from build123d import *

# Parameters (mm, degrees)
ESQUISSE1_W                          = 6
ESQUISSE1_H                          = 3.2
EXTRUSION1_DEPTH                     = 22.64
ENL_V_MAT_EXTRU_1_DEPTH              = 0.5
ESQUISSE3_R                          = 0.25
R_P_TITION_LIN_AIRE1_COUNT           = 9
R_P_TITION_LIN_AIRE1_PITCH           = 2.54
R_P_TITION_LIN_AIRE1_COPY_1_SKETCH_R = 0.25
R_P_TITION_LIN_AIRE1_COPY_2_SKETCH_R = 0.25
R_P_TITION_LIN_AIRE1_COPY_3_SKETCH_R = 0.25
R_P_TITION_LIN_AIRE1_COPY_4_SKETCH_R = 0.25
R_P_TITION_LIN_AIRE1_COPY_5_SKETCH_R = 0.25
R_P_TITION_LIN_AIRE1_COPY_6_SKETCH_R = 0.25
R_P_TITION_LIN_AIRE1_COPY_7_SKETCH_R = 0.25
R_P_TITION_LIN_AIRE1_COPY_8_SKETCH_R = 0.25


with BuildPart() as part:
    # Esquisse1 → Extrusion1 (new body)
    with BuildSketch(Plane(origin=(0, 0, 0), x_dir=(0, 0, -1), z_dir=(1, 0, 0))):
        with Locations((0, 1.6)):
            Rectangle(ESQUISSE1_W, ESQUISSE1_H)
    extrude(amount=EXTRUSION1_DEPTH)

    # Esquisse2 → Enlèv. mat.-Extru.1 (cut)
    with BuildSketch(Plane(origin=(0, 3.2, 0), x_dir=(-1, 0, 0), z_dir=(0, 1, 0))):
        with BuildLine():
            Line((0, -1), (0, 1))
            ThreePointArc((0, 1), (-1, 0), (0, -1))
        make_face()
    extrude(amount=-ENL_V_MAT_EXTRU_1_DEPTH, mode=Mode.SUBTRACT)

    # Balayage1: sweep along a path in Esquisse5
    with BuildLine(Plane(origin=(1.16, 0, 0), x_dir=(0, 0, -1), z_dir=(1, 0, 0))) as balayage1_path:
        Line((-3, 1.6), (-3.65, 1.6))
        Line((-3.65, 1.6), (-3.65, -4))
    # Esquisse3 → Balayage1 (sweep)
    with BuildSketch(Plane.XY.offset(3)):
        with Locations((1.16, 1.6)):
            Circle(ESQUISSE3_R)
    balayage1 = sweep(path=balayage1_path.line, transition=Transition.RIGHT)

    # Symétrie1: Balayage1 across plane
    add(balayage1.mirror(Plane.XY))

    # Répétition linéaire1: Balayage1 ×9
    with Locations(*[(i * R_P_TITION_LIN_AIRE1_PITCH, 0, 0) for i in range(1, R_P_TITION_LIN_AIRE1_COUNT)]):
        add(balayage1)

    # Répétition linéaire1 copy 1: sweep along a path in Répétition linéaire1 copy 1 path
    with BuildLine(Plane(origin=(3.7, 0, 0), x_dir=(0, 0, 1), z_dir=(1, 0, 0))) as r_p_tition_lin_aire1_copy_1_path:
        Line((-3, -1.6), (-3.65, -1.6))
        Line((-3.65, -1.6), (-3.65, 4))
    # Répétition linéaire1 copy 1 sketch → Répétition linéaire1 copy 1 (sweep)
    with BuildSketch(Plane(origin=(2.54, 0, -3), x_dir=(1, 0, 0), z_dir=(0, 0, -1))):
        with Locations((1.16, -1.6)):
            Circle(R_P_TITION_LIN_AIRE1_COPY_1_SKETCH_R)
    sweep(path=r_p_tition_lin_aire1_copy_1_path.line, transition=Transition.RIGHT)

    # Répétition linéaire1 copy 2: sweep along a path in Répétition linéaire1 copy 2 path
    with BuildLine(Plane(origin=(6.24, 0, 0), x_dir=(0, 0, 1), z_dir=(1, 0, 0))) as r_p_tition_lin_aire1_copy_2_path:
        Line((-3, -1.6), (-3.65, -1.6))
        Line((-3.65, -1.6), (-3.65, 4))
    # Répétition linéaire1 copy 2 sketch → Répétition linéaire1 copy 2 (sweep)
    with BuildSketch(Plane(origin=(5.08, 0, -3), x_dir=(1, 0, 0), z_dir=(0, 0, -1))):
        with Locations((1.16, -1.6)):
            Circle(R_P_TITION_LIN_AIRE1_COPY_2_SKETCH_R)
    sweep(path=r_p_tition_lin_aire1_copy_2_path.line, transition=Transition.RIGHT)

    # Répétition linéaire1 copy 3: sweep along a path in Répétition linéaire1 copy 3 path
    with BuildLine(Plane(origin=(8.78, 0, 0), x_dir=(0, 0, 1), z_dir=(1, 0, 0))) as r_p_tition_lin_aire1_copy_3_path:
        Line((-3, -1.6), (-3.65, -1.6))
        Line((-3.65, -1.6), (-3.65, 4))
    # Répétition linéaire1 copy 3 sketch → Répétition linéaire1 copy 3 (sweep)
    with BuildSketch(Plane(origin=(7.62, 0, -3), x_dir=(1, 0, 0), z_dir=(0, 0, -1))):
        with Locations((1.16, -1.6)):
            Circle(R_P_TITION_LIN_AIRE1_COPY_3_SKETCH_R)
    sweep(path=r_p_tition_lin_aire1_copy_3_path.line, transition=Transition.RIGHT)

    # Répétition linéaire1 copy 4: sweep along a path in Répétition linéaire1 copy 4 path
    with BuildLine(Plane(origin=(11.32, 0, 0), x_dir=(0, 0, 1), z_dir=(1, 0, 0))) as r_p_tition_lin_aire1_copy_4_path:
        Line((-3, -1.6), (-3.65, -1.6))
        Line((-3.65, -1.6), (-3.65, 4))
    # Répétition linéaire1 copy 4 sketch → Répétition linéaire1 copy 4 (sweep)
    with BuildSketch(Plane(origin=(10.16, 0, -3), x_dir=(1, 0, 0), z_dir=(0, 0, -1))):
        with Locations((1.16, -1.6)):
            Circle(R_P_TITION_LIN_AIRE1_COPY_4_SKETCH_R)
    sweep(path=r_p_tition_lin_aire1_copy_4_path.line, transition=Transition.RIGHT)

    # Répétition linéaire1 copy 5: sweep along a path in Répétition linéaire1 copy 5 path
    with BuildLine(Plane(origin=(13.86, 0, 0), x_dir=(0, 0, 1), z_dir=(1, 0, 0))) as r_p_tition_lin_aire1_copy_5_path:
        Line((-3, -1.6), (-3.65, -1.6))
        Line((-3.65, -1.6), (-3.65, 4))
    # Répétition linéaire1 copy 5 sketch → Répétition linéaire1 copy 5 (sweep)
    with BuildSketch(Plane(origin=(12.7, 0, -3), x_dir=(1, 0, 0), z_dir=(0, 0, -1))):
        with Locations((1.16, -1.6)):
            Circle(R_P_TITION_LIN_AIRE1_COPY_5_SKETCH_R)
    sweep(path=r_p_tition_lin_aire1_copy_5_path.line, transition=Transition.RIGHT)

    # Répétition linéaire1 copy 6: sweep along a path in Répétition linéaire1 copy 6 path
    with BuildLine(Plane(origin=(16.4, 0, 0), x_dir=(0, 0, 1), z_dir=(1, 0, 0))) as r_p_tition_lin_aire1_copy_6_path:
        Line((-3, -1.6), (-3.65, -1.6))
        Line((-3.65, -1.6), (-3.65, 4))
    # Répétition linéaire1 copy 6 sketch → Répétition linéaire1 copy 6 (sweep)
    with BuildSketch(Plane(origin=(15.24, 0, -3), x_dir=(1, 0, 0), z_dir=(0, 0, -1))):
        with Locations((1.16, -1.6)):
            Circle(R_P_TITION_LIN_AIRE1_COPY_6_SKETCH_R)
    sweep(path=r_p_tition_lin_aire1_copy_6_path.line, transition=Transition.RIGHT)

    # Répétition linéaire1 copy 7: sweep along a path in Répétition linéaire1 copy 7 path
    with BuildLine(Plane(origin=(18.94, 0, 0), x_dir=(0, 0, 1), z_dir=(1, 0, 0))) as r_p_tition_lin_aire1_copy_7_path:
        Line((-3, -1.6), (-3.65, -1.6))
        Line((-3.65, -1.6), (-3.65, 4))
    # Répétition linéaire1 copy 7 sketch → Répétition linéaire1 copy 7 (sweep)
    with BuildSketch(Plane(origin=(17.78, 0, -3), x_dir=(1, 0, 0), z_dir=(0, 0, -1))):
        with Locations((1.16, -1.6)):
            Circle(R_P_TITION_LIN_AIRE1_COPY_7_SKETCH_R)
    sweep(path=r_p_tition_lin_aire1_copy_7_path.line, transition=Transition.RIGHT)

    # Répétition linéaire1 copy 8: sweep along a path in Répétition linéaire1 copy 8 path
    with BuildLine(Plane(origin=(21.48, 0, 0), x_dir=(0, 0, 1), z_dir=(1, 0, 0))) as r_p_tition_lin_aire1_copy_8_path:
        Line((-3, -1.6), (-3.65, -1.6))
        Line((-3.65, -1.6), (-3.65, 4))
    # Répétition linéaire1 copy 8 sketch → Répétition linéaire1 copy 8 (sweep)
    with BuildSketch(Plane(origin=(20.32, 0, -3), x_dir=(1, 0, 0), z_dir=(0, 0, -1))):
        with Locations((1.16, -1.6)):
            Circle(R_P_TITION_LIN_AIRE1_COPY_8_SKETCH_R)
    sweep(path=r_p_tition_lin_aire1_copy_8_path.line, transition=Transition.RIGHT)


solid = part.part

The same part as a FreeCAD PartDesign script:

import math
import FreeCAD as App
import Part
import Sketcher
Q = App.Units.Quantity

doc = App.newDocument("Part")
body = doc.addObject("PartDesign::Body", "Body")

# Sketch on YZ plane
sketch1 = body.newObject("Sketcher::SketchObject", "Sketch")
sketch1.AttachmentSupport = (doc.getObject("YZ_Plane"), [""])
sketch1.MapMode = "FlatFace"
sketch1.addGeometry([
    Part.LineSegment(App.Vector(3.2, 3, 0), App.Vector(0, 3, 0)),
    Part.LineSegment(App.Vector(0, 3, 0), App.Vector(0, -3, 0)),
    Part.LineSegment(App.Vector(0, -3, 0), App.Vector(3.2, -3, 0)),
    Part.LineSegment(App.Vector(3.2, -3, 0), App.Vector(3.2, 3, 0)),
], False)
sketch1.addConstraint([
    Sketcher.Constraint("Coincident", 0, 2, 1, 1),
    Sketcher.Constraint("Coincident", 1, 2, 2, 1),
    Sketcher.Constraint("Coincident", 2, 2, 3, 1),
    Sketcher.Constraint("Coincident", 3, 2, 0, 1),
    Sketcher.Constraint("Horizontal", 0),
    Sketcher.Constraint("Vertical", 1),
    Sketcher.Constraint("Horizontal", 2),
    Sketcher.Constraint("Vertical", 3),
    Sketcher.Constraint("Symmetric", 0, 2, 1, 2, -1, 1),
    Sketcher.Constraint("DistanceY", 1, 2, 1, 1, Q("6 mm")),
    Sketcher.Constraint("DistanceX", 0, 2, 0, 1, Q("3.2 mm")),
])
pad1 = body.newObject("PartDesign::Pad", "Pad")
pad1.Profile = sketch1
pad1.Length = 22.64

# Sketch on XZ plane
sketch2 = body.newObject("Sketcher::SketchObject", "Sketch001")
sketch2.AttachmentSupport = (doc.getObject("XZ_Plane"), [""])
sketch2.MapMode = "FlatFace"
sketch2.AttachmentOffset = App.Placement(App.Vector(0, 0, -3.2), App.Rotation())
sketch2.addGeometry([
    Part.LineSegment(App.Vector(0, -1, 0), App.Vector(0, 1, 0)),
    Part.ArcOfCircle(Part.Circle(App.Vector(0, 0, 0), App.Vector(0, 0, 1), 1), math.radians(-90), math.radians(90)),
], False)
sketch2.addConstraint([
    Sketcher.Constraint("Coincident", 0, 1, 1, 1),
    Sketcher.Constraint("Coincident", 1, 2, 0, 2),
    Sketcher.Constraint("Vertical", 0),
    Sketcher.Constraint("Coincident", 1, 3, -1, 1),
    Sketcher.Constraint("PointOnObject", 0, 1, -2),
    Sketcher.Constraint("Radius", 1, Q("1 mm")),
])
pocket1 = body.newObject("PartDesign::Pocket", "Pocket")
pocket1.Profile = sketch2
pocket1.Length = 0.5
pocket1.Reversed = True

# Sketch on XY plane
sketch3 = body.newObject("Sketcher::SketchObject", "Sketch002")
sketch3.AttachmentSupport = (doc.getObject("XY_Plane"), [""])
sketch3.MapMode = "FlatFace"
sketch3.AttachmentOffset = App.Placement(App.Vector(0, 0, 3), App.Rotation())
sketch3.addGeometry(Part.Circle(App.Vector(1.16, 1.6, 0), App.Vector(0, 0, 1), 0.25), False)
sketch3.addConstraint([
    Sketcher.Constraint("Diameter", 0, Q("0.5 mm")),
    Sketcher.Constraint("DistanceY", -1, 1, 0, 3, Q("1.6 mm")),
    Sketcher.Constraint("DistanceX", -1, 1, 0, 3, Q("1.16 mm")),
])

# Sketch on YZ plane
sketch4 = body.newObject("Sketcher::SketchObject", "Sketch003")
sketch4.AttachmentSupport = (doc.getObject("YZ_Plane"), [""])
sketch4.MapMode = "FlatFace"
sketch4.AttachmentOffset = App.Placement(App.Vector(0, 0, 1.16), App.Rotation())
sketch4.addGeometry([
    Part.LineSegment(App.Vector(1.6, 3, 0), App.Vector(1.6, 3.6, 0)),
    Part.LineSegment(App.Vector(1.6, 3.6, 0), App.Vector(-4, 3.6, 0)),
], False)
sketch4.addConstraint([
    Sketcher.Constraint("Coincident", 0, 2, 1, 1),
    Sketcher.Constraint("Vertical", 0),
    Sketcher.Constraint("Horizontal", 1),
    Sketcher.Constraint("DistanceX", 1, 2, 1, 1, Q("5.6 mm")),
    Sketcher.Constraint("DistanceY", -1, 1, 0, 1, Q("3 mm")),
    Sketcher.Constraint("DistanceX", 1, 2, -1, 1, Q("4 mm")),
    Sketcher.Constraint("DistanceY", 0, 1, 0, 2, Q("0.65 mm")),
])
doc.recompute()

additivepipe = body.newObject("PartDesign::AdditivePipe", "AdditivePipe")
additivepipe.Profile = sketch3
additivepipe.Spine = (sketch4, ["Edge1", "Edge2"])
additivepipe.Transition = "Right corner"
doc.recompute()

mirrored = body.newObject("PartDesign::Mirrored", "Mirrored")
mirrored.Originals = [additivepipe]
mirrored.MirrorPlane = (doc.getObject("XY_Plane"), [""])
body.Tip = mirrored
doc.recompute()

linearpattern = body.newObject("PartDesign::LinearPattern", "LinearPattern")
linearpattern.Originals = [additivepipe]
linearpattern.Direction = (doc.getObject("X_Axis"), [""])
linearpattern.Mode = "offset"
linearpattern.Offset = 2.54
linearpattern.Occurrences = 9
body.Tip = linearpattern

# Sketch on XY plane
sketch5 = body.newObject("Sketcher::SketchObject", "Sketch004")
sketch5.AttachmentSupport = (doc.getObject("XY_Plane"), [""])
sketch5.MapMode = "FlatFace"
sketch5.AttachmentOffset = App.Placement(App.Vector(0, 0, -3), App.Rotation())
sketch5.addGeometry(Part.Circle(App.Vector(3.7, 1.6, 0), App.Vector(0, 0, 1), 0.25), False)
sketch5.addConstraint([
    Sketcher.Constraint("Diameter", 0, Q("0.5 mm")),
    Sketcher.Constraint("DistanceX", -1, 1, 0, 3, Q("3.7 mm")),
    Sketcher.Constraint("DistanceY", -1, 1, 0, 3, Q("1.6 mm")),
])

# Sketch on YZ plane
sketch6 = body.newObject("Sketcher::SketchObject", "Sketch005")
sketch6.AttachmentSupport = (doc.getObject("YZ_Plane"), [""])
sketch6.MapMode = "FlatFace"
sketch6.AttachmentOffset = App.Placement(App.Vector(0, 0, 3.7), App.Rotation())
sketch6.addGeometry([
    Part.LineSegment(App.Vector(1.6, -3, 0), App.Vector(1.6, -3.6, 0)),
    Part.LineSegment(App.Vector(1.6, -3.6, 0), App.Vector(-4, -3.6, 0)),
], False)
sketch6.addConstraint([
    Sketcher.Constraint("Coincident", 0, 2, 1, 1),
    Sketcher.Constraint("Vertical", 0),
    Sketcher.Constraint("Horizontal", 1),
    Sketcher.Constraint("DistanceX", 1, 2, 1, 1, Q("5.6 mm")),
    Sketcher.Constraint("DistanceY", 0, 1, -1, 1, Q("3 mm")),
    Sketcher.Constraint("DistanceX", 1, 2, -1, 1, Q("4 mm")),
    Sketcher.Constraint("DistanceY", 0, 2, 0, 1, Q("0.65 mm")),
])
doc.recompute()

additivepipe2 = body.newObject("PartDesign::AdditivePipe", "AdditivePipe001")
additivepipe2.Profile = sketch5
additivepipe2.Spine = (sketch6, ["Edge1", "Edge2"])
additivepipe2.Transition = "Right corner"

# Sketch on XY plane
sketch7 = body.newObject("Sketcher::SketchObject", "Sketch006")
sketch7.AttachmentSupport = (doc.getObject("XY_Plane"), [""])
sketch7.MapMode = "FlatFace"
sketch7.AttachmentOffset = App.Placement(App.Vector(0, 0, -3), App.Rotation())
sketch7.addGeometry(Part.Circle(App.Vector(6.24, 1.6, 0), App.Vector(0, 0, 1), 0.25), False)
sketch7.addConstraint([
    Sketcher.Constraint("Diameter", 0, Q("0.5 mm")),
    Sketcher.Constraint("DistanceY", -1, 1, 0, 3, Q("1.6 mm")),
    Sketcher.Constraint("DistanceX", -1, 1, 0, 3, Q("6.24 mm")),
])

# Sketch on YZ plane
sketch8 = body.newObject("Sketcher::SketchObject", "Sketch007")
sketch8.AttachmentSupport = (doc.getObject("YZ_Plane"), [""])
sketch8.MapMode = "FlatFace"
sketch8.AttachmentOffset = App.Placement(App.Vector(0, 0, 6.24), App.Rotation())
sketch8.addGeometry([
    Part.LineSegment(App.Vector(1.6, -3, 0), App.Vector(1.6, -3.6, 0)),
    Part.LineSegment(App.Vector(1.6, -3.6, 0), App.Vector(-4, -3.6, 0)),
], False)
sketch8.addConstraint([
    Sketcher.Constraint("Coincident", 0, 2, 1, 1),
    Sketcher.Constraint("Vertical", 0),
    Sketcher.Constraint("Horizontal", 1),
    Sketcher.Constraint("DistanceX", 1, 2, 1, 1, Q("5.6 mm")),
    Sketcher.Constraint("DistanceY", 0, 1, -1, 1, Q("3 mm")),
    Sketcher.Constraint("DistanceX", 1, 2, -1, 1, Q("4 mm")),
    Sketcher.Constraint("DistanceY", 0, 2, 0, 1, Q("0.65 mm")),
])
doc.recompute()

additivepipe3 = body.newObject("PartDesign::AdditivePipe", "AdditivePipe002")
additivepipe3.Profile = sketch7
additivepipe3.Spine = (sketch8, ["Edge1", "Edge2"])
additivepipe3.Transition = "Right corner"

# Sketch on XY plane
sketch9 = body.newObject("Sketcher::SketchObject", "Sketch008")
sketch9.AttachmentSupport = (doc.getObject("XY_Plane"), [""])
sketch9.MapMode = "FlatFace"
sketch9.AttachmentOffset = App.Placement(App.Vector(0, 0, -3), App.Rotation())
sketch9.addGeometry(Part.Circle(App.Vector(8.78, 1.6, 0), App.Vector(0, 0, 1), 0.25), False)
sketch9.addConstraint([
    Sketcher.Constraint("Diameter", 0, Q("0.5 mm")),
    Sketcher.Constraint("DistanceY", -1, 1, 0, 3, Q("1.6 mm")),
    Sketcher.Constraint("DistanceX", -1, 1, 0, 3, Q("8.78 mm")),
])

# Sketch on YZ plane
sketch10 = body.newObject("Sketcher::SketchObject", "Sketch009")
sketch10.AttachmentSupport = (doc.getObject("YZ_Plane"), [""])
sketch10.MapMode = "FlatFace"
sketch10.AttachmentOffset = App.Placement(App.Vector(0, 0, 8.78), App.Rotation())
sketch10.addGeometry([
    Part.LineSegment(App.Vector(1.6, -3, 0), App.Vector(1.6, -3.6, 0)),
    Part.LineSegment(App.Vector(1.6, -3.6, 0), App.Vector(-4, -3.6, 0)),
], False)
sketch10.addConstraint([
    Sketcher.Constraint("Coincident", 0, 2, 1, 1),
    Sketcher.Constraint("Vertical", 0),
    Sketcher.Constraint("Horizontal", 1),
    Sketcher.Constraint("DistanceX", 1, 2, 1, 1, Q("5.6 mm")),
    Sketcher.Constraint("DistanceY", 0, 1, -1, 1, Q("3 mm")),
    Sketcher.Constraint("DistanceX", 1, 2, -1, 1, Q("4 mm")),
    Sketcher.Constraint("DistanceY", 0, 2, 0, 1, Q("0.65 mm")),
])
doc.recompute()

additivepipe4 = body.newObject("PartDesign::AdditivePipe", "AdditivePipe003")
additivepipe4.Profile = sketch9
additivepipe4.Spine = (sketch10, ["Edge1", "Edge2"])
additivepipe4.Transition = "Right corner"

# Sketch on XY plane
sketch11 = body.newObject("Sketcher::SketchObject", "Sketch010")
sketch11.AttachmentSupport = (doc.getObject("XY_Plane"), [""])
sketch11.MapMode = "FlatFace"
sketch11.AttachmentOffset = App.Placement(App.Vector(0, 0, -3), App.Rotation())
sketch11.addGeometry(Part.Circle(App.Vector(11.32, 1.6, 0), App.Vector(0, 0, 1), 0.25), False)
sketch11.addConstraint([
    Sketcher.Constraint("Diameter", 0, Q("0.5 mm")),
    Sketcher.Constraint("DistanceY", -1, 1, 0, 3, Q("1.6 mm")),
    Sketcher.Constraint("DistanceX", -1, 1, 0, 3, Q("11.32 mm")),
])

# Sketch on YZ plane
sketch12 = body.newObject("Sketcher::SketchObject", "Sketch011")
sketch12.AttachmentSupport = (doc.getObject("YZ_Plane"), [""])
sketch12.MapMode = "FlatFace"
sketch12.AttachmentOffset = App.Placement(App.Vector(0, 0, 11.32), App.Rotation())
sketch12.addGeometry([
    Part.LineSegment(App.Vector(1.6, -3, 0), App.Vector(1.6, -3.6, 0)),
    Part.LineSegment(App.Vector(1.6, -3.6, 0), App.Vector(-4, -3.6, 0)),
], False)
sketch12.addConstraint([
    Sketcher.Constraint("Coincident", 0, 2, 1, 1),
    Sketcher.Constraint("Vertical", 0),
    Sketcher.Constraint("Horizontal", 1),
    Sketcher.Constraint("DistanceX", 1, 2, 1, 1, Q("5.6 mm")),
    Sketcher.Constraint("DistanceY", 0, 1, -1, 1, Q("3 mm")),
    Sketcher.Constraint("DistanceX", 1, 2, -1, 1, Q("4 mm")),
    Sketcher.Constraint("DistanceY", 0, 2, 0, 1, Q("0.65 mm")),
])
doc.recompute()

additivepipe5 = body.newObject("PartDesign::AdditivePipe", "AdditivePipe004")
additivepipe5.Profile = sketch11
additivepipe5.Spine = (sketch12, ["Edge1", "Edge2"])
additivepipe5.Transition = "Right corner"

# Sketch on XY plane
sketch13 = body.newObject("Sketcher::SketchObject", "Sketch012")
sketch13.AttachmentSupport = (doc.getObject("XY_Plane"), [""])
sketch13.MapMode = "FlatFace"
sketch13.AttachmentOffset = App.Placement(App.Vector(0, 0, -3), App.Rotation())
sketch13.addGeometry(Part.Circle(App.Vector(13.86, 1.6, 0), App.Vector(0, 0, 1), 0.25), False)
sketch13.addConstraint([
    Sketcher.Constraint("Diameter", 0, Q("0.5 mm")),
    Sketcher.Constraint("DistanceY", -1, 1, 0, 3, Q("1.6 mm")),
    Sketcher.Constraint("DistanceX", -1, 1, 0, 3, Q("13.86 mm")),
])

# Sketch on YZ plane
sketch14 = body.newObject("Sketcher::SketchObject", "Sketch013")
sketch14.AttachmentSupport = (doc.getObject("YZ_Plane"), [""])
sketch14.MapMode = "FlatFace"
sketch14.AttachmentOffset = App.Placement(App.Vector(0, 0, 13.86), App.Rotation())
sketch14.addGeometry([
    Part.LineSegment(App.Vector(1.6, -3, 0), App.Vector(1.6, -3.6, 0)),
    Part.LineSegment(App.Vector(1.6, -3.6, 0), App.Vector(-4, -3.6, 0)),
], False)
sketch14.addConstraint([
    Sketcher.Constraint("Coincident", 0, 2, 1, 1),
    Sketcher.Constraint("Vertical", 0),
    Sketcher.Constraint("Horizontal", 1),
    Sketcher.Constraint("DistanceX", 1, 2, 1, 1, Q("5.6 mm")),
    Sketcher.Constraint("DistanceY", 0, 1, -1, 1, Q("3 mm")),
    Sketcher.Constraint("DistanceX", 1, 2, -1, 1, Q("4 mm")),
    Sketcher.Constraint("DistanceY", 0, 2, 0, 1, Q("0.65 mm")),
])
doc.recompute()

additivepipe6 = body.newObject("PartDesign::AdditivePipe", "AdditivePipe005")
additivepipe6.Profile = sketch13
additivepipe6.Spine = (sketch14, ["Edge1", "Edge2"])
additivepipe6.Transition = "Right corner"

# Sketch on XY plane
sketch15 = body.newObject("Sketcher::SketchObject", "Sketch014")
sketch15.AttachmentSupport = (doc.getObject("XY_Plane"), [""])
sketch15.MapMode = "FlatFace"
sketch15.AttachmentOffset = App.Placement(App.Vector(0, 0, -3), App.Rotation())
sketch15.addGeometry(Part.Circle(App.Vector(16.4, 1.6, 0), App.Vector(0, 0, 1), 0.25), False)
sketch15.addConstraint([
    Sketcher.Constraint("Diameter", 0, Q("0.5 mm")),
    Sketcher.Constraint("DistanceX", -1, 1, 0, 3, Q("16.4 mm")),
    Sketcher.Constraint("DistanceY", -1, 1, 0, 3, Q("1.6 mm")),
])

# Sketch on YZ plane
sketch16 = body.newObject("Sketcher::SketchObject", "Sketch015")
sketch16.AttachmentSupport = (doc.getObject("YZ_Plane"), [""])
sketch16.MapMode = "FlatFace"
sketch16.AttachmentOffset = App.Placement(App.Vector(0, 0, 16.4), App.Rotation())
sketch16.addGeometry([
    Part.LineSegment(App.Vector(1.6, -3, 0), App.Vector(1.6, -3.6, 0)),
    Part.LineSegment(App.Vector(1.6, -3.6, 0), App.Vector(-4, -3.6, 0)),
], False)
sketch16.addConstraint([
    Sketcher.Constraint("Coincident", 0, 2, 1, 1),
    Sketcher.Constraint("Vertical", 0),
    Sketcher.Constraint("Horizontal", 1),
    Sketcher.Constraint("DistanceX", 1, 2, 1, 1, Q("5.6 mm")),
    Sketcher.Constraint("DistanceY", 0, 1, -1, 1, Q("3 mm")),
    Sketcher.Constraint("DistanceX", 1, 2, -1, 1, Q("4 mm")),
    Sketcher.Constraint("DistanceY", 0, 2, 0, 1, Q("0.65 mm")),
])
doc.recompute()

additivepipe7 = body.newObject("PartDesign::AdditivePipe", "AdditivePipe006")
additivepipe7.Profile = sketch15
additivepipe7.Spine = (sketch16, ["Edge1", "Edge2"])
additivepipe7.Transition = "Right corner"

# Sketch on XY plane
sketch17 = body.newObject("Sketcher::SketchObject", "Sketch016")
sketch17.AttachmentSupport = (doc.getObject("XY_Plane"), [""])
sketch17.MapMode = "FlatFace"
sketch17.AttachmentOffset = App.Placement(App.Vector(0, 0, -3), App.Rotation())
sketch17.addGeometry(Part.Circle(App.Vector(18.94, 1.6, 0), App.Vector(0, 0, 1), 0.25), False)
sketch17.addConstraint([
    Sketcher.Constraint("Diameter", 0, Q("0.5 mm")),
    Sketcher.Constraint("DistanceY", -1, 1, 0, 3, Q("1.6 mm")),
    Sketcher.Constraint("DistanceX", -1, 1, 0, 3, Q("18.94 mm")),
])

# Sketch on YZ plane
sketch18 = body.newObject("Sketcher::SketchObject", "Sketch017")
sketch18.AttachmentSupport = (doc.getObject("YZ_Plane"), [""])
sketch18.MapMode = "FlatFace"
sketch18.AttachmentOffset = App.Placement(App.Vector(0, 0, 18.94), App.Rotation())
sketch18.addGeometry([
    Part.LineSegment(App.Vector(1.6, -3, 0), App.Vector(1.6, -3.6, 0)),
    Part.LineSegment(App.Vector(1.6, -3.6, 0), App.Vector(-4, -3.6, 0)),
], False)
sketch18.addConstraint([
    Sketcher.Constraint("Coincident", 0, 2, 1, 1),
    Sketcher.Constraint("Vertical", 0),
    Sketcher.Constraint("Horizontal", 1),
    Sketcher.Constraint("DistanceX", 1, 2, 1, 1, Q("5.6 mm")),
    Sketcher.Constraint("DistanceY", 0, 1, -1, 1, Q("3 mm")),
    Sketcher.Constraint("DistanceX", 1, 2, -1, 1, Q("4 mm")),
    Sketcher.Constraint("DistanceY", 0, 2, 0, 1, Q("0.65 mm")),
])
doc.recompute()

additivepipe8 = body.newObject("PartDesign::AdditivePipe", "AdditivePipe007")
additivepipe8.Profile = sketch17
additivepipe8.Spine = (sketch18, ["Edge1", "Edge2"])
additivepipe8.Transition = "Right corner"

# Sketch on XY plane
sketch19 = body.newObject("Sketcher::SketchObject", "Sketch018")
sketch19.AttachmentSupport = (doc.getObject("XY_Plane"), [""])
sketch19.MapMode = "FlatFace"
sketch19.AttachmentOffset = App.Placement(App.Vector(0, 0, -3), App.Rotation())
sketch19.addGeometry(Part.Circle(App.Vector(21.48, 1.6, 0), App.Vector(0, 0, 1), 0.25), False)
sketch19.addConstraint([
    Sketcher.Constraint("Diameter", 0, Q("0.5 mm")),
    Sketcher.Constraint("DistanceY", -1, 1, 0, 3, Q("1.6 mm")),
    Sketcher.Constraint("DistanceX", -1, 1, 0, 3, Q("21.48 mm")),
])

# Sketch on YZ plane
sketch20 = body.newObject("Sketcher::SketchObject", "Sketch019")
sketch20.AttachmentSupport = (doc.getObject("YZ_Plane"), [""])
sketch20.MapMode = "FlatFace"
sketch20.AttachmentOffset = App.Placement(App.Vector(0, 0, 21.48), App.Rotation())
sketch20.addGeometry([
    Part.LineSegment(App.Vector(1.6, -3, 0), App.Vector(1.6, -3.6, 0)),
    Part.LineSegment(App.Vector(1.6, -3.6, 0), App.Vector(-4, -3.6, 0)),
], False)
sketch20.addConstraint([
    Sketcher.Constraint("Coincident", 0, 2, 1, 1),
    Sketcher.Constraint("Vertical", 0),
    Sketcher.Constraint("Horizontal", 1),
    Sketcher.Constraint("DistanceX", 1, 2, 1, 1, Q("5.6 mm")),
    Sketcher.Constraint("DistanceY", 0, 1, -1, 1, Q("3 mm")),
    Sketcher.Constraint("DistanceX", 1, 2, -1, 1, Q("4 mm")),
    Sketcher.Constraint("DistanceY", 0, 2, 0, 1, Q("0.65 mm")),
])
doc.recompute()

additivepipe9 = body.newObject("PartDesign::AdditivePipe", "AdditivePipe008")
additivepipe9.Profile = sketch19
additivepipe9.Spine = (sketch20, ["Edge1", "Edge2"])
additivepipe9.Transition = "Right corner"

doc.recompute()
